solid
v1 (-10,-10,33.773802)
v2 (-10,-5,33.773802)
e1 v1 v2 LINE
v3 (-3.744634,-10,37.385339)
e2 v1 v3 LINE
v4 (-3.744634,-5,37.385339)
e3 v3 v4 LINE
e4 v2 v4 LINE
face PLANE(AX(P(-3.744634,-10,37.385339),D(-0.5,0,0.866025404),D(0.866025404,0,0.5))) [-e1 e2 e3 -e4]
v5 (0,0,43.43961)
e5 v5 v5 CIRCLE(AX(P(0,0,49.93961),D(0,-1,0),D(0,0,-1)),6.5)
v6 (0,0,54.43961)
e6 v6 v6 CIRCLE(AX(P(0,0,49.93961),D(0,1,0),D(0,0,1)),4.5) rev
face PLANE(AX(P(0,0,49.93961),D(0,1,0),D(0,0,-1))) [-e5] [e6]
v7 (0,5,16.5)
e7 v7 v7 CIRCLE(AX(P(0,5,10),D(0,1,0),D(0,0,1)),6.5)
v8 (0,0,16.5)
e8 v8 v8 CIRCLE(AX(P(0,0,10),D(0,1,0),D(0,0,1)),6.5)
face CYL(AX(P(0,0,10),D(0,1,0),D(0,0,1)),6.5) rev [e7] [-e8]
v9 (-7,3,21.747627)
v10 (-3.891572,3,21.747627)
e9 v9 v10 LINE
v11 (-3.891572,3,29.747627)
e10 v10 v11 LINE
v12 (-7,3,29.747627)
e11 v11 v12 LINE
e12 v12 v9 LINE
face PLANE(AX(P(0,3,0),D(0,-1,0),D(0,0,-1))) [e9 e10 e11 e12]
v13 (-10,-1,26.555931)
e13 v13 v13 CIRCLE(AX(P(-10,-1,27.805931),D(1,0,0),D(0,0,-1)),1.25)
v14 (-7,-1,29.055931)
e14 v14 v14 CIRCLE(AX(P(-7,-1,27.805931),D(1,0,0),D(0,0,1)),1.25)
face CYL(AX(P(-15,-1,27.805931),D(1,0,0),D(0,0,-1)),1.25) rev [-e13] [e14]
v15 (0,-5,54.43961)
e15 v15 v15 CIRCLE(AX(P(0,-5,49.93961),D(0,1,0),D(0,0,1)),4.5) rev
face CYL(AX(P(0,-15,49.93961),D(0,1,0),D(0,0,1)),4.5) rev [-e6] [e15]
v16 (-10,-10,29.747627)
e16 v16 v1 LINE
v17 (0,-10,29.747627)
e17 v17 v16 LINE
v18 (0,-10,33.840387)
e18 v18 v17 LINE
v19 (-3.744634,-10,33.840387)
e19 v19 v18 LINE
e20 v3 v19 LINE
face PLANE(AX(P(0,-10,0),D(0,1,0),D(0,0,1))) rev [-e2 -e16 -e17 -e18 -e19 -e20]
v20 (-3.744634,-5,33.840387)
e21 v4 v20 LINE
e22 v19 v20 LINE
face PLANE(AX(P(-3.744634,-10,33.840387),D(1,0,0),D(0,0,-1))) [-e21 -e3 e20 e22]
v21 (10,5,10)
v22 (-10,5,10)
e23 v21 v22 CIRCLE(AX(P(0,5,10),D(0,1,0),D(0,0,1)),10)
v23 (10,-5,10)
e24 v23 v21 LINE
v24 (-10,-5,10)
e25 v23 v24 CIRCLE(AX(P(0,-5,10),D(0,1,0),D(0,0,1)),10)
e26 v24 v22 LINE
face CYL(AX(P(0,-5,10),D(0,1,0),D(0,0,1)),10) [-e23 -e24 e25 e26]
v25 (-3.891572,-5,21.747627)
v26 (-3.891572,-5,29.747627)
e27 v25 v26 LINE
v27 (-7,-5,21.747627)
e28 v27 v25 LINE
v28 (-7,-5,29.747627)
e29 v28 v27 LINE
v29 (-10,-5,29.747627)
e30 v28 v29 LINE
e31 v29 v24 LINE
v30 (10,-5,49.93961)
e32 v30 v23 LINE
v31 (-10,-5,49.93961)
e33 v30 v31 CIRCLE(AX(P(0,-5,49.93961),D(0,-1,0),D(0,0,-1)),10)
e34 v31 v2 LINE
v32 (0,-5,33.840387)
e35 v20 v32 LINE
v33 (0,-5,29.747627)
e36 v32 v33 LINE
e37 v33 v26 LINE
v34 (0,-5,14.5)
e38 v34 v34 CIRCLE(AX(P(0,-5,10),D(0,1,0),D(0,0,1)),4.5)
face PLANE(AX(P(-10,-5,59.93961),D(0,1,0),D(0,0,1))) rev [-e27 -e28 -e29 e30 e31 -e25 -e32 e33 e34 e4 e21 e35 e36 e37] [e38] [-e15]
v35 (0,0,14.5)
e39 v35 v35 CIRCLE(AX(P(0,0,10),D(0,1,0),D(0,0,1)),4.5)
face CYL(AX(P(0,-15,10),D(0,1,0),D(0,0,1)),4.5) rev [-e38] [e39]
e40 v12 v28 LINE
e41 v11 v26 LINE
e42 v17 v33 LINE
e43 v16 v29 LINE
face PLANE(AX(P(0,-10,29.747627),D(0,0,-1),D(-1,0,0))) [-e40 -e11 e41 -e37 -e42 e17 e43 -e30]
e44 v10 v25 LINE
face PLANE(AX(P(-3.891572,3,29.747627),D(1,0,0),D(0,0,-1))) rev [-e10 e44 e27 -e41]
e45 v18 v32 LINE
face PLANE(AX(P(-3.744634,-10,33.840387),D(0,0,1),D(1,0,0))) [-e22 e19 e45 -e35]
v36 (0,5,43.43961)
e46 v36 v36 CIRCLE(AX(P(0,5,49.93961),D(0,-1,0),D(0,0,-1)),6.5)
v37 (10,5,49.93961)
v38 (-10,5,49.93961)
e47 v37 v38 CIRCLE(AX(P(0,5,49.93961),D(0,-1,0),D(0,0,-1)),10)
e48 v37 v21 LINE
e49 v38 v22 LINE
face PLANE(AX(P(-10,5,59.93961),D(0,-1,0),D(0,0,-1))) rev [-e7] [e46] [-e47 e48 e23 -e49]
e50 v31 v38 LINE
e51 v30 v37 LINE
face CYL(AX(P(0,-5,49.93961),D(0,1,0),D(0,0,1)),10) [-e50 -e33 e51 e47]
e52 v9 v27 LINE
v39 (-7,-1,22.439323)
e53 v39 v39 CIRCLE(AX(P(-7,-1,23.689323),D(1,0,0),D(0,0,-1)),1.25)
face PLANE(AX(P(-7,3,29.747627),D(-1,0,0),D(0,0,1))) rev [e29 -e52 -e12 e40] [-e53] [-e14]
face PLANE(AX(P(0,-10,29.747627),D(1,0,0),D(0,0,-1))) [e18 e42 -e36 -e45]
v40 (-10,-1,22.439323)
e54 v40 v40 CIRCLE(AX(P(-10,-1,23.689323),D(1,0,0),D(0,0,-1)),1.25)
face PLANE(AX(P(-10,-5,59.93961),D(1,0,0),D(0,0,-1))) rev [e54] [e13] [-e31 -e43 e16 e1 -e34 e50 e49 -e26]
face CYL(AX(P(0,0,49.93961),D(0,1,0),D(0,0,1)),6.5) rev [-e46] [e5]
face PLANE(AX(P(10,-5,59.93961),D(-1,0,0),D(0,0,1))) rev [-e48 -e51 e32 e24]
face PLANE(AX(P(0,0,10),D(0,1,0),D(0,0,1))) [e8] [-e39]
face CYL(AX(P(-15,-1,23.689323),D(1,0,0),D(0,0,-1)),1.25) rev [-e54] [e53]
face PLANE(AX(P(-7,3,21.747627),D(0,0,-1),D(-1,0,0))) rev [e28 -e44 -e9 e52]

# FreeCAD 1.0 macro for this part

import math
import FreeCAD as App
import Part
import Sketcher

V = App.Vector
Q = App.Units.Quantity

doc = App.newDocument("Part")
body = doc.addObject("PartDesign::Body", "Body")

sketch1 = doc.addObject("Sketcher::SketchObject", "Sketch")
body.addObject(sketch1)
sketch1.AttachmentSupport = (doc.XY_Plane, [""])
sketch1.MapMode = "FlatFace"
sketch1.addGeometry(Part.LineSegment(V(-10, 5, 0), V(-10, -5, 0)), False)
sketch1.addGeometry(Part.LineSegment(V(-10, -5, 0), V(10, -5, 0)), False)
sketch1.addGeometry(Part.LineSegment(V(10, -5, 0), V(10, 5, 0)), False)
sketch1.addGeometry(Part.LineSegment(V(10, 5, 0), V(-10, 5, 0)), False)
sketch1.addConstraint(Sketcher.Constraint("Coincident", 0, 2, 1, 1))
sketch1.addConstraint(Sketcher.Constraint("Coincident", 1, 2, 2, 1))
sketch1.addConstraint(Sketcher.Constraint("Coincident", 2, 2, 3, 1))
sketch1.addConstraint(Sketcher.Constraint("Coincident", 3, 2, 0, 1))
sketch1.addConstraint(Sketcher.Constraint("Vertical", 0))
sketch1.addConstraint(Sketcher.Constraint("Horizontal", 1))
sketch1.addConstraint(Sketcher.Constraint("Vertical", 2))
sketch1.addConstraint(Sketcher.Constraint("Horizontal", 3))
sketch1.addConstraint(Sketcher.Constraint("Symmetric", 0, 2, 2, 2, -1, 1))
sketch1.addConstraint(Sketcher.Constraint("DistanceX", 1, 1, 1, 2, Q("20 mm")))
sketch1.addConstraint(Sketcher.Constraint("DistanceY", 0, 2, 0, 1, Q("10 mm")))
pad1 = doc.addObject("PartDesign::Pad", "Pad")
body.addObject(pad1)
pad1.Profile = sketch1
pad1.Length = 59.93961

sketch2 = doc.addObject("Sketcher::SketchObject", "Sketch001")
body.addObject(sketch2)
sketch2.AttachmentSupport = (doc.XZ_Plane, [""])
sketch2.MapMode = "FlatFace"
sketch2.AttachmentOffset = App.Placement(V(0, 0, -5), App.Rotation())
sketch2.addGeometry(Part.Circle(V(0, 10, 0), V(0, 0, 1), 6.5), False)
sketch2.addConstraint(Sketcher.Constraint("PointOnObject", 0, 3, -2))
sketch2.addConstraint(Sketcher.Constraint("Diameter", 0, Q("13 mm")))
sketch2.addConstraint(Sketcher.Constraint("DistanceY", -1, 1, 0, 3, Q("10 mm")))
pocket1 = doc.addObject("PartDesign::Pocket", "Pocket")
body.addObject(pocket1)
pocket1.Profile = sketch2
pocket1.Length = 5
pocket1.Reversed = True

sketch3 = doc.addObject("Sketcher::SketchObject", "Sketch002")
body.addObject(sketch3)
sketch3.AttachmentSupport = (doc.XZ_Plane, [""])
sketch3.MapMode = "FlatFace"
sketch3.AttachmentOffset = App.Placement(V(0, 0, -5), App.Rotation())
sketch3.addGeometry(Part.Circle(V(0, 10, 0), V(0, 0, 1), 4.5), False)
sketch3.addConstraint(Sketcher.Constraint("PointOnObject", 0, 3, -2))
sketch3.addConstraint(Sketcher.Constraint("Diameter", 0, Q("9 mm")))
sketch3.addConstraint(Sketcher.Constraint("DistanceY", -1, 1, 0, 3, Q("10 mm")))
pocket2 = doc.addObject("PartDesign::Pocket", "Pocket001")
body.addObject(pocket2)
pocket2.Profile = sketch3
pocket2.Length = 20
pocket2.Reversed = True

sketch4 = doc.addObject("Sketcher::SketchObject", "Sketch003")
body.addObject(sketch4)
sketch4.AttachmentSupport = (doc.XZ_Plane, [""])
sketch4.MapMode = "FlatFace"
sketch4.AttachmentOffset = App.Placement(V(0, 0, -5), App.Rotation())
sketch4.addGeometry(Part.LineSegment(V(-10, 0, 0), V(-10, 10, 0)), False)
sketch4.addGeometry(Part.ArcOfCircle(Part.Circle(V(0, 10, 0), V(0, 0, 1), 10), math.radians(180), math.radians(270)), False)
sketch4.addGeometry(Part.LineSegment(V(0, 0, 0), V(-10, 0, 0)), False)
sketch4.addGeometry(Part.LineSegment(V(10, 0, 0), V(0, 0, 0)), False)
sketch4.addGeometry(Part.ArcOfCircle(Part.Circle(V(0, 10, 0), V(0, 0, 1), 10), math.radians(-90), math.radians(0)), False)
sketch4.addGeometry(Part.LineSegment(V(10, 10, 0), V(10, 0, 0)), False)
sketch4.addConstraint(Sketcher.Constraint("Tangent", 0, 2, 1, 1))
sketch4.addConstraint(Sketcher.Constraint("Tangent", 1, 2, 2, 1))
sketch4.addConstraint(Sketcher.Constraint("Coincident", 2, 2, 0, 1))
sketch4.addConstraint(Sketcher.Constraint("Tangent", 3, 2, 4, 1))
sketch4.addConstraint(Sketcher.Constraint("Tangent", 4, 2, 5, 1))
sketch4.addConstraint(Sketcher.Constraint("Coincident", 5, 2, 3, 1))
sketch4.addConstraint(Sketcher.Constraint("Vertical", 0))
sketch4.addConstraint(Sketcher.Constraint("Horizontal", 2))
sketch4.addConstraint(Sketcher.Constraint("Horizontal", 3))
sketch4.addConstraint(Sketcher.Constraint("Vertical", 5))
sketch4.addConstraint(Sketcher.Constraint("Coincident", 1, 2, -1, 1))
sketch4.addConstraint(Sketcher.Constraint("Coincident", 3, 2, -1, 1))
sketch4.addConstraint(Sketcher.Constraint("Equal", 1, 4))
sketch4.addConstraint(Sketcher.Constraint("Radius", 1, Q("10 mm")))
pocket3 = doc.addObject("PartDesign::Pocket", "Pocket002")
body.addObject(pocket3)
pocket3.Profile = sketch4
pocket3.Length = 10
pocket3.Reversed = True
doc.recompute()

datumplane = doc.addObject("PartDesign::Plane", "DatumPlane")
body.addObject(datumplane)
datumplane.AttachmentSupport = (doc.XY_Plane, [""])
datumplane.MapMode = "FlatFace"
datumplane.AttachmentOffset = App.Placement(V(0, 0, 29.969805), App.Rotation())
mirrored = doc.addObject("PartDesign::Mirrored", "Mirrored")
body.addObject(mirrored)
mirrored.Originals = [pocket1, pocket2, pocket3]
mirrored.MirrorPlane = (datumplane, [""])
body.Tip = mirrored

sketch5 = doc.addObject("Sketcher::SketchObject", "Sketch004")
body.addObject(sketch5)
sketch5.AttachmentSupport = (doc.XZ_Plane, [""])
sketch5.MapMode = "FlatFace"
sketch5.AttachmentOffset = App.Placement(V(0, 0, 5), App.Rotation())
sketch5.addGeometry(Part.LineSegment(V(-10, 33.773802, 0), V(-3.744634, 37.385339, 0)), False)
sketch5.addGeometry(Part.LineSegment(V(-3.744634, 37.385339, 0), V(-3.744634, 33.840387, 0)), False)
sketch5.addGeometry(Part.LineSegment(V(-3.744634, 33.840387, 0), V(0, 33.840387, 0)), False)
sketch5.addGeometry(Part.LineSegment(V(0, 33.840387, 0), V(0, 29.747627, 0)), False)
sketch5.addGeometry(Part.LineSegment(V(0, 29.747627, 0), V(-10, 29.747627, 0)), False)
sketch5.addGeometry(Part.LineSegment(V(-10, 29.747627, 0), V(-10, 33.773802, 0)), False)
sketch5.addConstraint(Sketcher.Constraint("Coincident", 0, 2, 1, 1))
sketch5.addConstraint(Sketcher.Constraint("Coincident", 1, 2, 2, 1))
sketch5.addConstraint(Sketcher.Constraint("Coincident", 2, 2, 3, 1))
sketch5.addConstraint(Sketcher.Constraint("Coincident", 3, 2, 4, 1))
sketch5.addConstraint(Sketcher.Constraint("Coincident", 4, 2, 5, 1))
sketch5.addConstraint(Sketcher.Constraint("Coincident", 5, 2, 0, 1))
sketch5.addConstraint(Sketcher.Constraint("Vertical", 1))
sketch5.addConstraint(Sketcher.Constraint("Horizontal", 2))
sketch5.addConstraint(Sketcher.Constraint("Vertical", 3))
sketch5.addConstraint(Sketcher.Constraint("Horizontal", 4))
sketch5.addConstraint(Sketcher.Constraint("Vertical", 5))
sketch5.addConstraint(Sketcher.Constraint("PointOnObject", 2, 2, -2))
sketch5.addConstraint(Sketcher.Constraint("DistanceX", 4, 2, 4, 1, Q("10 mm")))
sketch5.addConstraint(Sketcher.Constraint("Angle", 0, Q("30 deg")))
sketch5.addConstraint(Sketcher.Constraint("DistanceY", 3, 2, 3, 1, Q("4.09276 mm")))
sketch5.addConstraint(Sketcher.Constraint("DistanceX", 2, 1, 2, 2, Q("3.744634 mm")))
sketch5.addConstraint(Sketcher.Constraint("DistanceY", 1, 2, 1, 1, Q("3.544952 mm")))
sketch5.addConstraint(Sketcher.Constraint("DistanceY", -1, 1, 0, 2, Q("37.385339 mm")))
pad2 = doc.addObject("PartDesign::Pad", "Pad001")
body.addObject(pad2)
pad2.Profile = sketch5
pad2.Length = 5

sketch6 = doc.addObject("Sketcher::SketchObject", "Sketch005")
body.addObject(sketch6)
sketch6.AttachmentSupport = (doc.XZ_Plane, [""])
sketch6.MapMode = "FlatFace"
sketch6.AttachmentOffset = App.Placement(V(0, 0, 5), App.Rotation())
sketch6.addGeometry(Part.LineSegment(V(-7, 29.747627, 0), V(-7, 21.747627, 0)), False)
sketch6.addGeometry(Part.LineSegment(V(-7, 21.747627, 0), V(-3.891572, 21.747627, 0)), False)
sketch6.addGeometry(Part.LineSegment(V(-3.891572, 21.747627, 0), V(-3.891572, 29.747627, 0)), False)
sketch6.addGeometry(Part.LineSegment(V(-3.891572, 29.747627, 0), V(-7, 29.747627, 0)), False)
sketch6.addConstraint(Sketcher.Constraint("Coincident", 0, 2, 1, 1))
sketch6.addConstraint(Sketcher.Constraint("Coincident", 1, 2, 2, 1))
sketch6.addConstraint(Sketcher.Constraint("Coincident", 2, 2, 3, 1))
sketch6.addConstraint(Sketcher.Constraint("Coincident", 3, 2, 0, 1))
sketch6.addConstraint(Sketcher.Constraint("Vertical", 0))
sketch6.addConstraint(Sketcher.Constraint("Horizontal", 1))
sketch6.addConstraint(Sketcher.Constraint("Vertical", 2))
sketch6.addConstraint(Sketcher.Constraint("Horizontal", 3))
sketch6.addConstraint(Sketcher.Constraint("DistanceY", 0, 2, 0, 1, Q("8 mm")))
sketch6.addConstraint(Sketcher.Constraint("DistanceX", 0, 2, -1, 1, Q("7 mm")))
sketch6.addConstraint(Sketcher.Constraint("DistanceX", 1, 1, 1, 2, Q("3.108428 mm")))
sketch6.addConstraint(Sketcher.Constraint("DistanceY", -1, 1, 0, 2, Q("21.747627 mm")))
pocket4 = doc.addObject("PartDesign::Pocket", "Pocket003")
body.addObject(pocket4)
pocket4.Profile = sketch6
pocket4.Length = 8

sketch7 = doc.addObject("Sketcher::SketchObject", "Sketch006")
body.addObject(sketch7)
sketch7.AttachmentSupport = (doc.YZ_Plane, [""])
sketch7.MapMode = "FlatFace"
sketch7.AttachmentOffset = App.Placement(V(0, 0, -7), App.Rotation())
sketch7.addGeometry(Part.Circle(V(-1, 23.689323, 0), V(0, 0, 1), 1.25), False)
sketch7.addGeometry(Part.Circle(V(-1, 27.805931, 0), V(0, 0, 1), 1.25), False)
sketch7.addConstraint(Sketcher.Constraint("Equal", 0, 1))
sketch7.addConstraint(Sketcher.Constraint("Vertical", 0, 3, 1, 3))
sketch7.addConstraint(Sketcher.Constraint("Diameter", 0, Q("2.5 mm")))
sketch7.addConstraint(Sketcher.Constraint("DistanceX", 0, 3, -1, 1, Q("1 mm")))
sketch7.addConstraint(Sketcher.Constraint("DistanceY", -1, 1, 1, 3, Q("27.805931 mm")))
sketch7.addConstraint(Sketcher.Constraint("DistanceY", 0, 3, 1, 3, Q("4.116608 mm")))
pocket5 = doc.addObject("PartDesign::Pocket", "Pocket004")
body.addObject(pocket5)
pocket5.Profile = sketch7
pocket5.Length = 8

doc.recompute()
